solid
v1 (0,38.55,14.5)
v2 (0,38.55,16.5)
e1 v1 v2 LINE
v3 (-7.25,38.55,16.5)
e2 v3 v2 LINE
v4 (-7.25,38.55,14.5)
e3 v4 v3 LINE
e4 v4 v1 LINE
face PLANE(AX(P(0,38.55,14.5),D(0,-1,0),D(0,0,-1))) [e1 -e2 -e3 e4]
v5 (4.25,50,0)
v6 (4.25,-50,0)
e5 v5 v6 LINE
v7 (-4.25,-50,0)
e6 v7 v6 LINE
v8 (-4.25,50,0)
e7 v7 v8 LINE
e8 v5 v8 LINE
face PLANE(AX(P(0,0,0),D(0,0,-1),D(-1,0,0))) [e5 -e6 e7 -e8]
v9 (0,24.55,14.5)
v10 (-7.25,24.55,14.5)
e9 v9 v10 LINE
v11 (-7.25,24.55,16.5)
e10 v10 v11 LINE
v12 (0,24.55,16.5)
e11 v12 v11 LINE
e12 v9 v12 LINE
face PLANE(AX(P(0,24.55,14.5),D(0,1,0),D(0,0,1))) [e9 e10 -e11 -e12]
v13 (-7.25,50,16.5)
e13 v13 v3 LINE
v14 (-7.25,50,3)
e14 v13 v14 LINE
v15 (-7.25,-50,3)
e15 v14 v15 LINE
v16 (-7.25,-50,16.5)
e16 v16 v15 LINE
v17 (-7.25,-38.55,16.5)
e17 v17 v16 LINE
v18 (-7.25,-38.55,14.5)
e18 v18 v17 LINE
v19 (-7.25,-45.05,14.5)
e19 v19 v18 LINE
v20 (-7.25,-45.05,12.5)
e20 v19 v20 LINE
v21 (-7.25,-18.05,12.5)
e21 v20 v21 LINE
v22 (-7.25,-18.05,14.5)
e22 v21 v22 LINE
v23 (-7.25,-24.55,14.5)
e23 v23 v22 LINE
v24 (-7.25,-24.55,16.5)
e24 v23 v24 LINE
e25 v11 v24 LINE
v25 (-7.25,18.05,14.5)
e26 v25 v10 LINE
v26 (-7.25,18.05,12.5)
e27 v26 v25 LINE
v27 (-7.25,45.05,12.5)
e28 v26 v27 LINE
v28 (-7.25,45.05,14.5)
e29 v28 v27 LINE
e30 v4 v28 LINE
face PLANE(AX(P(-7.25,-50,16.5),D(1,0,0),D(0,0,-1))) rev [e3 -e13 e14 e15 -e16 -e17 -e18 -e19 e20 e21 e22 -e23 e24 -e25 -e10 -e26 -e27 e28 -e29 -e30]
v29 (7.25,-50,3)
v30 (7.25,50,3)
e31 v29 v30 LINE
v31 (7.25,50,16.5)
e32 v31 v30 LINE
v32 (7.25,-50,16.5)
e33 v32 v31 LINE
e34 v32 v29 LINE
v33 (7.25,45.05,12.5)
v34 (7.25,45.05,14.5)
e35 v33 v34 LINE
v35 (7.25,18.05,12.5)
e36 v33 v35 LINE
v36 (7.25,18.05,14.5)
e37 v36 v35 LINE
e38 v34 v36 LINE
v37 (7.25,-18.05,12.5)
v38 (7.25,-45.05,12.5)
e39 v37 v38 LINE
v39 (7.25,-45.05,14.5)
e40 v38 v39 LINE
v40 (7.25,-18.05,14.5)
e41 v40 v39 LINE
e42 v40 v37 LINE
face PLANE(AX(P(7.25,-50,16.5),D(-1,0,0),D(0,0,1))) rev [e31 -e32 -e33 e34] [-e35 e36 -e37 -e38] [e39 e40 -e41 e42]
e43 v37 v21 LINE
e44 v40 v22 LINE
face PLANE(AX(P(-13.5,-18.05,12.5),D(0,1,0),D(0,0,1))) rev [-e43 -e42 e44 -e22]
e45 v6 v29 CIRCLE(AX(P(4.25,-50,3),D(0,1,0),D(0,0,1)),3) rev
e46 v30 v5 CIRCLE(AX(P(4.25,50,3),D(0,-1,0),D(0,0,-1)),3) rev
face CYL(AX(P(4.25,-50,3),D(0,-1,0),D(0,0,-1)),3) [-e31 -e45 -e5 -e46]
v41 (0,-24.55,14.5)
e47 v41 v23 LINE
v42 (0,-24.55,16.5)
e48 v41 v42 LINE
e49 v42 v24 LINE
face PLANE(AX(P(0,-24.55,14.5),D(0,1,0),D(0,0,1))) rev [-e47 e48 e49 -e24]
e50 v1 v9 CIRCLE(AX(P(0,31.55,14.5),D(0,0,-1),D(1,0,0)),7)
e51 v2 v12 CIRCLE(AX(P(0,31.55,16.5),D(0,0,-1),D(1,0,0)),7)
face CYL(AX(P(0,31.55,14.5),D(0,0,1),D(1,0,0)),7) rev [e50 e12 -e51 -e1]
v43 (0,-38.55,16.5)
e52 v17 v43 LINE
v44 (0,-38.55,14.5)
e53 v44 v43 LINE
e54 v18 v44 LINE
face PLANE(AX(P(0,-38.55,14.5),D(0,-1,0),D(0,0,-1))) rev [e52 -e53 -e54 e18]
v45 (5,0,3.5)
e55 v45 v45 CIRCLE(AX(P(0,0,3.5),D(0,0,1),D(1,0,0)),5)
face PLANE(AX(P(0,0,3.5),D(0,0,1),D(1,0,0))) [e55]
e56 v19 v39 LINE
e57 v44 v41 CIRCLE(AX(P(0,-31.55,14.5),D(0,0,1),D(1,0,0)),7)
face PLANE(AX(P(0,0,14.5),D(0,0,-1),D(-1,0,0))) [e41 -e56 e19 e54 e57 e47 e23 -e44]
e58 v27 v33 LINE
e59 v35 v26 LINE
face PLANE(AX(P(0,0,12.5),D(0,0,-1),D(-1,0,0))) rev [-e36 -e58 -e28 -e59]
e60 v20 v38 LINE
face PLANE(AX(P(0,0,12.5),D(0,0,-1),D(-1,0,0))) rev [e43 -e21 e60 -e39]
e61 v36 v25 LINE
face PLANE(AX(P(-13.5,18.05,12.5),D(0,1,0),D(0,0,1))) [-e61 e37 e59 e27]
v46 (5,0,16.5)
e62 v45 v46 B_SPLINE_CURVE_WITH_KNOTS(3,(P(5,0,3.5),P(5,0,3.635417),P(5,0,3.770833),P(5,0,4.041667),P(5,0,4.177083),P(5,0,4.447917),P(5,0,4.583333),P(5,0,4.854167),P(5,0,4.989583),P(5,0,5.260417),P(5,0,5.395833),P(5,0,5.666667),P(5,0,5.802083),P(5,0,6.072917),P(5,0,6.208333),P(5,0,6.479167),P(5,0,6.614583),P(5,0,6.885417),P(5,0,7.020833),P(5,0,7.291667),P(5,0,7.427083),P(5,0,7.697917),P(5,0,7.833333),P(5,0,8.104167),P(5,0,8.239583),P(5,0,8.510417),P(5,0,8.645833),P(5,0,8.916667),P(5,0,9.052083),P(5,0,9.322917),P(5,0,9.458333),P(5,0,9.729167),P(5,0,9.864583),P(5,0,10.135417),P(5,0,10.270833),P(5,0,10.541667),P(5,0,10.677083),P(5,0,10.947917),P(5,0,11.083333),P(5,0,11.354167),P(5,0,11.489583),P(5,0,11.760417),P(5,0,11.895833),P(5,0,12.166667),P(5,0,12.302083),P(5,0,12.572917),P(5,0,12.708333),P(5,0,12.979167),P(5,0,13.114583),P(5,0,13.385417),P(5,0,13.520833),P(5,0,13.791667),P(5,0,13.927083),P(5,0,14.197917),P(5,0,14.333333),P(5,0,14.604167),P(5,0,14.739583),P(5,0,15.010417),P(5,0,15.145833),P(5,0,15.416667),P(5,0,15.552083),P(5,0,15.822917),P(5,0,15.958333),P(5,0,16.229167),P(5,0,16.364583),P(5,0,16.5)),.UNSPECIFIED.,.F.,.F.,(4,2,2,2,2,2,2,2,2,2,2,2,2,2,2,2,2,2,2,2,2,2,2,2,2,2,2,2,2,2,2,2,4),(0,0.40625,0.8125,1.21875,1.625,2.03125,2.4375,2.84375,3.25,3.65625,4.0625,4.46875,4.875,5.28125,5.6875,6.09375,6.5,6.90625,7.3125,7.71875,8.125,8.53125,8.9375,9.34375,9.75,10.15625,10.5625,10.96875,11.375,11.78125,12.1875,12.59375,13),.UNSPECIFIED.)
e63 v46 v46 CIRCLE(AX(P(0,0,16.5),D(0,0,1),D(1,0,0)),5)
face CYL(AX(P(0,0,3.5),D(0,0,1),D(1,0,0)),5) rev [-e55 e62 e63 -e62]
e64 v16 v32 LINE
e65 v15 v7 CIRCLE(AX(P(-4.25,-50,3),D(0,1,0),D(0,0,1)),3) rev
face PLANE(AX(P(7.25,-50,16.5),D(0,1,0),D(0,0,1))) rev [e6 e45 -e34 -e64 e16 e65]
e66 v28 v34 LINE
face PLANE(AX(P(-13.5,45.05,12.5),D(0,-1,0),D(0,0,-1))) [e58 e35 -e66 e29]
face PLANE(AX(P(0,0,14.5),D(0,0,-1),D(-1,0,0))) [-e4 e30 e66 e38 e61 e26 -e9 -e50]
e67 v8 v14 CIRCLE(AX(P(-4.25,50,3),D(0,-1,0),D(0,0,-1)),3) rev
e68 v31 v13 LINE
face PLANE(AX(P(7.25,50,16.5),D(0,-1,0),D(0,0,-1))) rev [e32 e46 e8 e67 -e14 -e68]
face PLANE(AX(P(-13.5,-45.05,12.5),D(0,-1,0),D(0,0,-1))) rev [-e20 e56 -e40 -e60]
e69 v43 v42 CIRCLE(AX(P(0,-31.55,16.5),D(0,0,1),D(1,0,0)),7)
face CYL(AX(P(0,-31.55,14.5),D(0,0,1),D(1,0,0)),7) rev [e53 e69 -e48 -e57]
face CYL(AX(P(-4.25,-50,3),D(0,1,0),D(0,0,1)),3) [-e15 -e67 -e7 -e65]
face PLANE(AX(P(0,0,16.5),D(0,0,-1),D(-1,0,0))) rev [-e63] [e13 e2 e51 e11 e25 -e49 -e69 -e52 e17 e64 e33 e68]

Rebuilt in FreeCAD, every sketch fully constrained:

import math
import FreeCAD as App
import Part
import Sketcher
from FreeCAD import Vector


def edges_at(feature, points):
    """Names of the edges that pass closest to the given points."""
    edges = feature.Shape.Edges
    near = lambda p: min(range(len(edges)), key=lambda i: edges[i].distToShape(Part.Vertex(*p))[0])
    return sorted({f"Edge{near(p) + 1}" for p in points})

doc = App.newDocument("Part")
body = doc.addObject("PartDesign::Body", "Body")

sketch1 = body.newObject("Sketcher::SketchObject", "Sketch")
sketch1.AttachmentSupport = (doc.getObject("XY_Plane"), [""])
sketch1.MapMode = "FlatFace"
sketch1.addGeometry(Part.LineSegment(Vector(-7, -50, 0), Vector(7, -50, 0)), False)
sketch1.addGeometry(Part.LineSegment(Vector(7, -50, 0), Vector(7, 50, 0)), False)
sketch1.addGeometry(Part.LineSegment(Vector(7, 50, 0), Vector(-7, 50, 0)), False)
sketch1.addGeometry(Part.LineSegment(Vector(-7, 50, 0), Vector(-7, -50, 0)), False)
sketch1.addConstraint(Sketcher.Constraint("Coincident", 0, 2, 1, 1))
sketch1.addConstraint(Sketcher.Constraint("Coincident", 1, 2, 2, 1))
sketch1.addConstraint(Sketcher.Constraint("Coincident", 2, 2, 3, 1))
sketch1.addConstraint(Sketcher.Constraint("Coincident", 3, 2, 0, 1))
sketch1.addConstraint(Sketcher.Constraint("Horizontal", 0))
sketch1.addConstraint(Sketcher.Constraint("Vertical", 1))
sketch1.addConstraint(Sketcher.Constraint("Horizontal", 2))
sketch1.addConstraint(Sketcher.Constraint("Vertical", 3))
sketch1.addConstraint(Sketcher.Constraint("Symmetric", 0, 2, 2, 2, -1, 1))
sketch1.addConstraint(Sketcher.Constraint("DistanceY", 1, 1, 1, 2, 100.0))
sketch1.addConstraint(Sketcher.Constraint("DistanceX", 0, 1, 0, 2, 14.5))
pad1 = body.newObject("PartDesign::Pad", "Pad")
pad1.Profile = sketch1
pad1.Length = 16.5

sketch2 = body.newObject("Sketcher::SketchObject", "Sketch001")
sketch2.AttachmentSupport = (doc.getObject("XY_Plane"), [""])
sketch2.MapMode = "FlatFace"
sketch2.AttachmentOffset = App.Placement(Vector(0, 0, 16.5), App.Rotation())
sketch2.addGeometry(Part.Circle(Vector(0, 0, 0), Vector(0, 0, 1), 5), False)
sketch2.addConstraint(Sketcher.Constraint("Coincident", 0, 3, -1, 1))
sketch2.addConstraint(Sketcher.Constraint("Diameter", 0, 10.0))
pocket1 = body.newObject("PartDesign::Pocket", "Pocket")
pocket1.Profile = sketch2
pocket1.Length = 13

sketch3 = body.newObject("Sketcher::SketchObject", "Sketch002")
sketch3.AttachmentSupport = (doc.getObject("XY_Plane"), [""])
sketch3.MapMode = "FlatFace"
sketch3.AttachmentOffset = App.Placement(Vector(0, 0, 14.5), App.Rotation())
sketch3.addGeometry(Part.LineSegment(Vector(-14, -18, 0), Vector(-14, -45, 0)), False)
sketch3.addGeometry(Part.LineSegment(Vector(-14, -45, 0), Vector(14, -45, 0)), False)
sketch3.addGeometry(Part.LineSegment(Vector(14, -45, 0), Vector(14, -18, 0)), False)
sketch3.addGeometry(Part.LineSegment(Vector(14, -18, 0), Vector(-14, -18, 0)), False)
sketch3.addConstraint(Sketcher.Constraint("Coincident", 0, 2, 1, 1))
sketch3.addConstraint(Sketcher.Constraint("Coincident", 1, 2, 2, 1))
sketch3.addConstraint(Sketcher.Constraint("Coincident", 2, 2, 3, 1))
sketch3.addConstraint(Sketcher.Constraint("Coincident", 3, 2, 0, 1))
sketch3.addConstraint(Sketcher.Constraint("Vertical", 0))
sketch3.addConstraint(Sketcher.Constraint("Horizontal", 1))
sketch3.addConstraint(Sketcher.Constraint("Vertical", 2))
sketch3.addConstraint(Sketcher.Constraint("Horizontal", 3))
sketch3.addConstraint(Sketcher.Constraint("Equal", 3, 0))
sketch3.addConstraint(Sketcher.Constraint("DistanceX", 1, 1, 1, 2, 27.0))
sketch3.addConstraint(Sketcher.Constraint("DistanceX", 0, 2, -1, 1, 13.5))
sketch3.addConstraint(Sketcher.Constraint("DistanceY", 0, 2, -1, 1, 45.05))
pocket2 = body.newObject("PartDesign::Pocket", "Pocket001")
pocket2.Profile = sketch3
pocket2.Length = 2

sketch4 = body.newObject("Sketcher::SketchObject", "Sketch003")
sketch4.AttachmentSupport = (doc.getObject("XY_Plane"), [""])
sketch4.MapMode = "FlatFace"
sketch4.AttachmentOffset = App.Placement(Vector(0, 0, 16.5), App.Rotation())
sketch4.addGeometry(Part.LineSegment(Vector(0, -25, 0), Vector(-7, -25, 0)), False)
sketch4.addGeometry(Part.LineSegment(Vector(-7, -25, 0), Vector(-7, -39, 0)), False)
sketch4.addGeometry(Part.LineSegment(Vector(-7, -39, 0), Vector(0, -39, 0)), False)
sketch4.addGeometry(Part.ArcOfCircle(Part.Circle(Vector(0, -32, 0), Vector(0, 0, 1), 7), math.radians(-90), math.radians(90)), False)
sketch4.addConstraint(Sketcher.Constraint("Coincident", 0, 2, 1, 1))
sketch4.addConstraint(Sketcher.Constraint("Coincident", 1, 2, 2, 1))
sketch4.addConstraint(Sketcher.Constraint("Tangent", 2, 2, 3, 1))
sketch4.addConstraint(Sketcher.Constraint("Tangent", 3, 2, 0, 1))
sketch4.addConstraint(Sketcher.Constraint("Horizontal", 0))
sketch4.addConstraint(Sketcher.Constraint("Vertical", 1))
sketch4.addConstraint(Sketcher.Constraint("Horizontal", 2))
sketch4.addConstraint(Sketcher.Constraint("PointOnObject", 3, 3, -2))
sketch4.addConstraint(Sketcher.Constraint("Radius", 3, 7.0))
sketch4.addConstraint(Sketcher.Constraint("DistanceX", 0, 2, 0, 1, 7.25))
sketch4.addConstraint(Sketcher.Constraint("DistanceY", 3, 3, -1, 1, 31.55))
pocket3 = body.newObject("PartDesign::Pocket", "Pocket002")
pocket3.Profile = sketch4
pocket3.Length = 2
doc.recompute()

mirrored = body.newObject("PartDesign::Mirrored", "Mirrored")
mirrored.Originals = [pocket2]
mirrored.MirrorPlane = (doc.getObject("XZ_Plane"), [""])
body.Tip = mirrored
doc.recompute()

mirrored2 = body.newObject("PartDesign::Mirrored", "Mirrored001")
mirrored2.Originals = [pocket3]
mirrored2.MirrorPlane = (doc.getObject("XZ_Plane"), [""])
body.Tip = mirrored2
doc.recompute()

fillet = body.newObject("PartDesign::Fillet", "Fillet")
fillet.Base = (mirrored2, edges_at(mirrored2, [(-7.25, 0, 0)]))
fillet.Radius = 3
doc.recompute()

fillet2 = body.newObject("PartDesign::Fillet", "Fillet001")
fillet2.Base = (fillet, edges_at(fillet, [(7.25, 0, 0)]))
fillet2.Radius = 3

doc.recompute()
